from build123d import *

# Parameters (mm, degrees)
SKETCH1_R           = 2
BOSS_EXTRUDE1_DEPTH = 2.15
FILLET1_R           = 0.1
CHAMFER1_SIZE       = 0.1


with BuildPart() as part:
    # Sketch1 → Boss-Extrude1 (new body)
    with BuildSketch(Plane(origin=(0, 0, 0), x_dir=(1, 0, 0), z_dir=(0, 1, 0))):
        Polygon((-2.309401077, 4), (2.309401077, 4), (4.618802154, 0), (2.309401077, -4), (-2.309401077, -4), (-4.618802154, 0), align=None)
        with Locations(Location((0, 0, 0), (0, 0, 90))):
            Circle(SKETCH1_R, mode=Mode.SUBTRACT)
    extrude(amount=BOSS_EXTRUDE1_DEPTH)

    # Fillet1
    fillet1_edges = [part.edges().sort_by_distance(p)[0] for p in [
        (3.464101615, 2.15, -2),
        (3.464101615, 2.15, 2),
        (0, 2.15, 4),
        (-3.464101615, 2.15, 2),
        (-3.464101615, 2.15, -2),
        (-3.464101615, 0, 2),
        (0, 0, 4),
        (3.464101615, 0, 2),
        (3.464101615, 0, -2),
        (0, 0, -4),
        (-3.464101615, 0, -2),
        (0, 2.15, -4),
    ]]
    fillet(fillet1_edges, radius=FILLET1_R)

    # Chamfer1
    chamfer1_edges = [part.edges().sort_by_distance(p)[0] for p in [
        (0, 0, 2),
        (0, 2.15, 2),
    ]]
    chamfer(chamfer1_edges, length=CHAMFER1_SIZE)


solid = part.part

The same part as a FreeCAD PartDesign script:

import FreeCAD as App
import Part
import Sketcher
Q = App.Units.Quantity


def edges_at(feature, points):
    """Names of the edges that pass closest to the given points."""
    edges = feature.Shape.Edges
    near = lambda p: min(range(len(edges)), key=lambda i: edges[i].distToShape(Part.Vertex(*p))[0])
    return sorted({f"Edge{near(p) + 1}" for p in points})


def add_polygon(sketch, points):
    """Adds a closed chain of lines whose ends are joined by coincident constraints."""
    first, n = sketch.GeometryCount, len(points)
    for a, b in zip(points, points[1:] + points[:1]):
        sketch.addGeometry(Part.LineSegment(App.Vector(*a, 0), App.Vector(*b, 0)), False)
    for i in range(n):
        sketch.addConstraint(Sketcher.Constraint("Coincident", first + i, 2, first + (i + 1) % n, 1))

doc = App.newDocument("Part")
body = doc.addObject("PartDesign::Body", "Body")

# Sketch on XZ plane
sketch1 = body.newObject("Sketcher::SketchObject", "Sketch")
sketch1.AttachmentSupport = (doc.getObject("XZ_Plane"), [""])
sketch1.MapMode = "FlatFace"
add_polygon(sketch1, [(2.3, -4), (-2.3, -4), (-4.6, 0), (-2.3, 4), (2.3, 4), (4.6, 0)])  # lines 0-5
sketch1.addGeometry(Part.Circle(App.Vector(0, 0, 0), App.Vector(0, 0, 1), 2), False)  # 6
sketch1.addConstraint(Sketcher.Constraint("Horizontal", 0))
sketch1.addConstraint(Sketcher.Constraint("Horizontal", 3))
sketch1.addConstraint(Sketcher.Constraint("Coincident", 6, 3, -1, 1))
sketch1.addConstraint(Sketcher.Constraint("Symmetric", 0, 2, 3, 2, -1, 1))
sketch1.addConstraint(Sketcher.Constraint("Symmetric", 1, 2, 4, 2, -1, 1))
sketch1.addConstraint(Sketcher.Constraint("PointOnObject", 1, 2, -1))
sketch1.addConstraint(Sketcher.Constraint("Parallel", 2, 5))
sketch1.addConstraint(Sketcher.Constraint("Vertical", 0, 2, 2, 2))
sketch1.addConstraint(Sketcher.Constraint("Diameter", 6, Q("4 mm")))
sketch1.addConstraint(Sketcher.Constraint("Angle", 1, Q("120 deg")))
sketch1.addConstraint(Sketcher.Constraint("DistanceY", 0, 2, -1, 1, Q("4 mm")))
sketch1.addConstraint(Sketcher.Constraint("DistanceX", 0, 2, -1, 1, Q("2.309401 mm")))
pad1 = body.newObject("PartDesign::Pad", "Pad")
pad1.Profile = sketch1
pad1.Length = 2.15
pad1.Reversed = True
doc.recompute()

fillet = body.newObject("PartDesign::Fillet", "Fillet")
fillet.Base = (pad1, edges_at(pad1, [
    (3.464, 2.15, -2),
    (3.464, 2.15, 2),
    (0, 2.15, 4),
    (-3.464, 2.15, 2),
    (-3.464, 2.15, -2),
    (-3.464, 0, 2),
    (0, 0, 4),
    (3.464, 0, 2),
    (3.464, 0, -2),
    (0, 0, -4),
    (-3.464, 0, -2),
    (0, 2.15, -4),
]))
fillet.Radius = 0.1
doc.recompute()

chamfer = body.newObject("PartDesign::Chamfer", "Chamfer")
chamfer.Base = (fillet, edges_at(fillet, [(0, 0, 2), (0, 2.15, 2)]))
chamfer.Size = 0.1

doc.recompute()
